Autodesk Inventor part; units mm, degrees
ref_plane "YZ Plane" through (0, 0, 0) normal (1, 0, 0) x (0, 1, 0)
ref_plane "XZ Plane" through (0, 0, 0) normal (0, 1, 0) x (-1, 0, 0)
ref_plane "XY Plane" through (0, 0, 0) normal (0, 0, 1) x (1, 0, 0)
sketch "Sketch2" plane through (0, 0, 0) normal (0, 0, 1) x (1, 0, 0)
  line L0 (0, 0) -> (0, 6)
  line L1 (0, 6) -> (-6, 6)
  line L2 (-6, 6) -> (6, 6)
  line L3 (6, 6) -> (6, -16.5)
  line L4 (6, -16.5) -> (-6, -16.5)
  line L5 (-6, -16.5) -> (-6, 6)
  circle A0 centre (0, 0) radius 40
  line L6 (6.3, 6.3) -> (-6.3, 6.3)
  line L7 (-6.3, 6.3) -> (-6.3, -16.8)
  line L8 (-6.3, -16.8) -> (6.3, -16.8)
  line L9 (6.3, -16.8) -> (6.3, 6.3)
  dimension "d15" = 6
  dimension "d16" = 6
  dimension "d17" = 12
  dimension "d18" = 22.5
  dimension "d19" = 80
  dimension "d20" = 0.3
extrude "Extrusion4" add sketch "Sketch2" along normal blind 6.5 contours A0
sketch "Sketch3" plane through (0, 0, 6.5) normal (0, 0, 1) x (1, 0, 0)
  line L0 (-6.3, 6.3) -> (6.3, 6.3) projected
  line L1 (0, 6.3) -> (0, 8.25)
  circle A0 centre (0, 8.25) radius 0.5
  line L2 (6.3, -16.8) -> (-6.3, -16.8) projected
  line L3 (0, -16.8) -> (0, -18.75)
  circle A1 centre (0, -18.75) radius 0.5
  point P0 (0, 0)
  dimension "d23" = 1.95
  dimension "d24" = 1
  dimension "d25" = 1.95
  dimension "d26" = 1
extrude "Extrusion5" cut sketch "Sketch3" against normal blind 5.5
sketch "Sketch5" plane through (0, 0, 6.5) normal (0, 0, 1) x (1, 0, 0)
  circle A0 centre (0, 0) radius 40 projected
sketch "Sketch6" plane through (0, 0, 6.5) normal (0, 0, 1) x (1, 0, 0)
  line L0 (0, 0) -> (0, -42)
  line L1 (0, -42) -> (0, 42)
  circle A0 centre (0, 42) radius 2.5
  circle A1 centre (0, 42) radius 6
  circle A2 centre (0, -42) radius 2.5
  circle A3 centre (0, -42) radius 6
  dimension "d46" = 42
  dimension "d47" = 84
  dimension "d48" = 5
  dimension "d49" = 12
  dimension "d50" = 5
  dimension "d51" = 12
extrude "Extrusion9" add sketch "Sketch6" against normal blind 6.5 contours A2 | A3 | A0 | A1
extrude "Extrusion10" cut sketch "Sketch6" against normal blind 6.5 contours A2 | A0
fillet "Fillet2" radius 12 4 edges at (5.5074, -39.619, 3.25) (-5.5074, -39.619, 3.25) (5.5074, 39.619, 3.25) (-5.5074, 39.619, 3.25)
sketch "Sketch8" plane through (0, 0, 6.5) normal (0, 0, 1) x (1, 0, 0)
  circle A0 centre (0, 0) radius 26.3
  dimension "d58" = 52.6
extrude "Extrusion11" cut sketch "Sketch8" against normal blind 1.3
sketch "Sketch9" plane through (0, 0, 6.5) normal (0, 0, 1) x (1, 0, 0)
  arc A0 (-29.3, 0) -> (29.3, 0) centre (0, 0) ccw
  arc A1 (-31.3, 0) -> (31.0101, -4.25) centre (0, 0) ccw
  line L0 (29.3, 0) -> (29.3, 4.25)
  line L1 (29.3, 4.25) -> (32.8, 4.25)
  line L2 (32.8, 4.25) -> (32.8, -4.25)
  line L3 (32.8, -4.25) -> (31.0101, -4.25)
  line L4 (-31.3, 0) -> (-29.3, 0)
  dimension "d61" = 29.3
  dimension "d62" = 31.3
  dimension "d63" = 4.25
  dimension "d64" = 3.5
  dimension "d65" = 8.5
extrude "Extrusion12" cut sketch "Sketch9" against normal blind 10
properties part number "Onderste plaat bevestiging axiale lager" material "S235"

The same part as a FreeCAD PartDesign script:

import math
import FreeCAD as App
import Part
import Sketcher


def edges_at(feature, points):
    """Names of the edges that pass closest to the given points."""
    edges = feature.Shape.Edges
    near = lambda p: min(range(len(edges)), key=lambda i: edges[i].distToShape(Part.Vertex(*p))[0])
    return sorted({f"Edge{near(p) + 1}" for p in points})

doc = App.newDocument("Part")
body = doc.addObject("PartDesign::Body", "Body")

# Sketch on XY plane
sketch1 = body.newObject("Sketcher::SketchObject", "Sketch")
sketch1.AttachmentSupport = (doc.getObject("XY_Plane"), [""])
sketch1.MapMode = "FlatFace"
sketch1.addGeometry([
    Part.Circle(App.Vector(0, 0, 0), App.Vector(0, 0, 1), 40),  # 0
    Part.LineSegment(App.Vector(-6, 6, 0), App.Vector(6, 6, 0)),  # 1
    Part.LineSegment(App.Vector(6, 6, 0), App.Vector(6, -17, 0)),  # 2
    Part.LineSegment(App.Vector(6, -17, 0), App.Vector(-6, -17, 0)),  # 3
    Part.LineSegment(App.Vector(-6, -17, 0), App.Vector(-6, 6, 0)),  # 4
], False)
sketch1.addConstraint([
    Sketcher.Constraint("Coincident", 1, 2, 2, 1),
    Sketcher.Constraint("Coincident", 2, 2, 3, 1),
    Sketcher.Constraint("Coincident", 3, 2, 4, 1),
    Sketcher.Constraint("Coincident", 4, 2, 1, 1),
    Sketcher.Constraint("Horizontal", 1),
    Sketcher.Constraint("Vertical", 2),
    Sketcher.Constraint("Horizontal", 3),
    Sketcher.Constraint("Vertical", 4),
    Sketcher.Constraint("Coincident", 0, 3, -1, 1),
    Sketcher.Constraint("Diameter", 0, 80.0),
    Sketcher.Constraint("DistanceX", 1, 1, 1, 2, 12.6),
    Sketcher.Constraint("DistanceY", 2, 2, 2, 1, 23.1),
    Sketcher.Constraint("DistanceX", -1, 1, 1, 2, 6.3),
    Sketcher.Constraint("DistanceY", -1, 1, 1, 2, 6.3),
])
pad1 = body.newObject("PartDesign::Pad", "Pad")
pad1.Profile = sketch1
pad1.Length = 6.5

# Sketch on XY plane
sketch2 = body.newObject("Sketcher::SketchObject", "Sketch001")
sketch2.AttachmentSupport = (doc.getObject("XY_Plane"), [""])
sketch2.MapMode = "FlatFace"
sketch2.AttachmentOffset = App.Placement(App.Vector(0, 0, 6.5), App.Rotation())
sketch2.addGeometry([
    Part.Circle(App.Vector(0, 8.2, 0), App.Vector(0, 0, 1), 0.5),
    Part.Circle(App.Vector(0, -18.8, 0), App.Vector(0, 0, 1), 0.5),
], False)
sketch2.addConstraint([
    Sketcher.Constraint("Equal", 0, 1),
    Sketcher.Constraint("PointOnObject", 0, 3, -2),
    Sketcher.Constraint("PointOnObject", 1, 3, -2),
    Sketcher.Constraint("Diameter", 0, 1.0),
    Sketcher.Constraint("DistanceY", 1, 3, 0, 3, 27.0),
    Sketcher.Constraint("DistanceY", -1, 1, 0, 3, 8.25),
])
pocket1 = body.newObject("PartDesign::Pocket", "Pocket")
pocket1.Profile = sketch2
pocket1.Length = 5.5

# Sketch on XY plane
sketch3 = body.newObject("Sketcher::SketchObject", "Sketch002")
sketch3.AttachmentSupport = (doc.getObject("XY_Plane"), [""])
sketch3.MapMode = "FlatFace"
sketch3.AttachmentOffset = App.Placement(App.Vector(0, 0, 6.5), App.Rotation())
sketch3.addGeometry([
    Part.Circle(App.Vector(0, -42, 0), App.Vector(0, 0, 1), 6),
    Part.Circle(App.Vector(0, 42, 0), App.Vector(0, 0, 1), 6),
], False)
sketch3.addConstraint([
    Sketcher.Constraint("Equal", 0, 1),
    Sketcher.Constraint("Symmetric", 0, 3, 1, 3, -1, 1),
    Sketcher.Constraint("PointOnObject", 0, 3, -2),
    Sketcher.Constraint("Diameter", 0, 12.0),
    Sketcher.Constraint("DistanceY", 0, 3, -1, 1, 42.0),
])
pad2 = body.newObject("PartDesign::Pad", "Pad001")
pad2.Profile = sketch3
pad2.Length = 6.5
pad2.Reversed = True

# Sketch on XY plane
sketch4 = body.newObject("Sketcher::SketchObject", "Sketch003")
sketch4.AttachmentSupport = (doc.getObject("XY_Plane"), [""])
sketch4.MapMode = "FlatFace"
sketch4.AttachmentOffset = App.Placement(App.Vector(0, 0, 6.5), App.Rotation())
sketch4.addGeometry([
    Part.Circle(App.Vector(0, -42, 0), App.Vector(0, 0, 1), 2.5),
    Part.Circle(App.Vector(0, 42, 0), App.Vector(0, 0, 1), 2.5),
], False)
sketch4.addConstraint([
    Sketcher.Constraint("Equal", 0, 1),
    Sketcher.Constraint("Symmetric", 0, 3, 1, 3, -1, 1),
    Sketcher.Constraint("PointOnObject", 0, 3, -2),
    Sketcher.Constraint("Diameter", 0, 5.0),
    Sketcher.Constraint("DistanceY", 0, 3, -1, 1, 42.0),
])
pocket2 = body.newObject("PartDesign::Pocket", "Pocket001")
pocket2.Profile = sketch4
pocket2.Length = 6.5
doc.recompute()

fillet = body.newObject("PartDesign::Fillet", "Fillet")
fillet.Base = (pocket2, edges_at(pocket2, [
    (5.507, -39.619, 3.25),
    (-5.507, -39.619, 3.25),
    (5.507, 39.619, 3.25),
    (-5.507, 39.619, 3.25),
]))
fillet.Radius = 12

# Sketch on XY plane
sketch5 = body.newObject("Sketcher::SketchObject", "Sketch004")
sketch5.AttachmentSupport = (doc.getObject("XY_Plane"), [""])
sketch5.MapMode = "FlatFace"
sketch5.AttachmentOffset = App.Placement(App.Vector(0, 0, 6.5), App.Rotation())
sketch5.addGeometry(Part.Circle(App.Vector(0, 0, 0), App.Vector(0, 0, 1), 26), False)
sketch5.addConstraint([
    Sketcher.Constraint("Coincident", 0, 3, -1, 1),
    Sketcher.Constraint("Diameter", 0, 52.6),
])
pocket3 = body.newObject("PartDesign::Pocket", "Pocket002")
pocket3.Profile = sketch5
pocket3.Length = 1.3

# Sketch on XY plane
sketch6 = body.newObject("Sketcher::SketchObject", "Sketch005")
sketch6.AttachmentSupport = (doc.getObject("XY_Plane"), [""])
sketch6.MapMode = "FlatFace"
sketch6.AttachmentOffset = App.Placement(App.Vector(0, 0, 6.5), App.Rotation())
sketch6.addGeometry([
    Part.ArcOfCircle(Part.Circle(App.Vector(0, 0, 0), App.Vector(0, 0, 1), 29.3), math.radians(180), math.radians(360)),  # 0
    Part.LineSegment(App.Vector(-29.3, 0, 0), App.Vector(-31.3, 0, 0)),  # 1
    Part.ArcOfCircle(Part.Circle(App.Vector(0, 0, 0), App.Vector(0, 0, 1), 31.3), math.radians(180), math.radians(352)),  # 2
    Part.LineSegment(App.Vector(31, -4.2, 0), App.Vector(32.8, -4.2, 0)),  # 3
    Part.LineSegment(App.Vector(32.8, -4.2, 0), App.Vector(32.8, 4.2, 0)),  # 4
    Part.LineSegment(App.Vector(32.8, 4.2, 0), App.Vector(29.3, 4.2, 0)),  # 5
    Part.LineSegment(App.Vector(29.3, 4.2, 0), App.Vector(29.3, 0, 0)),  # 6
], False)
sketch6.addConstraint([
    Sketcher.Constraint("Coincident", 0, 1, 1, 1),
    Sketcher.Constraint("Coincident", 1, 2, 2, 1),
    Sketcher.Constraint("Coincident", 2, 2, 3, 1),
    Sketcher.Constraint("Coincident", 3, 2, 4, 1),
    Sketcher.Constraint("Coincident", 4, 2, 5, 1),
    Sketcher.Constraint("Coincident", 5, 2, 6, 1),
    Sketcher.Constraint("Tangent", 6, 2, 0, 2),
    Sketcher.Constraint("Horizontal", 1),
    Sketcher.Constraint("Horizontal", 3),
    Sketcher.Constraint("Vertical", 4),
    Sketcher.Constraint("Horizontal", 5),
    Sketcher.Constraint("Vertical", 6),
    Sketcher.Constraint("Coincident", 0, 3, -1, 1),
    Sketcher.Constraint("Coincident", 2, 3, -1, 1),
    Sketcher.Constraint("PointOnObject", 0, 1, -1),
    Sketcher.Constraint("Radius", 0, 29.3),
    Sketcher.Constraint("Radius", 2, 31.3),
    Sketcher.Constraint("DistanceX", 5, 2, 5, 1, 3.5),
    Sketcher.Constraint("DistanceY", 4, 1, 4, 2, 8.5),
    Sketcher.Constraint("DistanceY", 6, 2, 6, 1, 4.25),
])
pocket4 = body.newObject("PartDesign::Pocket", "Pocket003")
pocket4.Profile = sketch6
pocket4.Length = 10

doc.recompute()
